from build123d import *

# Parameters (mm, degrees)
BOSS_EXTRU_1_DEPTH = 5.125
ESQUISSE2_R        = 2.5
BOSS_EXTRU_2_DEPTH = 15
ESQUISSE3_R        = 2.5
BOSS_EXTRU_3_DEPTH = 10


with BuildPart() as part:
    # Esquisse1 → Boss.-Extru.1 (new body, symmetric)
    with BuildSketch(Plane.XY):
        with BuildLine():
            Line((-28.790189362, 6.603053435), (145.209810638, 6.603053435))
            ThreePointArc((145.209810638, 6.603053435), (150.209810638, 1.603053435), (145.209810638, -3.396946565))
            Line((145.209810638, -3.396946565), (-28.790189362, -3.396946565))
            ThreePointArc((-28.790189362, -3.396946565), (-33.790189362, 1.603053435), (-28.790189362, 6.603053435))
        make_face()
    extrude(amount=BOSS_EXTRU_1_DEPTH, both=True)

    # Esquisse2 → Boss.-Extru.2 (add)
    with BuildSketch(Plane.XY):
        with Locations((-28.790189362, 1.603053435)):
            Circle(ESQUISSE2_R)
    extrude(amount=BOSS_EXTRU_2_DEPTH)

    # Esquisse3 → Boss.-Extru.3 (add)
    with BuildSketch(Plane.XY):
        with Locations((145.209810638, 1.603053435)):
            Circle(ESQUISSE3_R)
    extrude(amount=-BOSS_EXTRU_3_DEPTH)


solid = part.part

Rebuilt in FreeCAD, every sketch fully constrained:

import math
import FreeCAD as App
import Part
import Sketcher
from FreeCAD import Vector

doc = App.newDocument("Part")
body = doc.addObject("PartDesign::Body", "Body")

sketch1 = body.newObject("Sketcher::SketchObject", "Sketch")
sketch1.AttachmentSupport = (doc.getObject("XY_Plane"), [""])
sketch1.MapMode = "FlatFace"
sketch1.addGeometry([
    Part.LineSegment(Vector(145, 7, 0), Vector(-29, 7, 0)),
    Part.ArcOfCircle(Part.Circle(Vector(-29, 2, 0), Vector(0, 0, 1), 5), math.radians(90), math.radians(270)),
    Part.LineSegment(Vector(-29, -3, 0), Vector(145, -3, 0)),
    Part.ArcOfCircle(Part.Circle(Vector(145, 2, 0), Vector(0, 0, 1), 5), math.radians(-90), math.radians(90)),
], False)
sketch1.addConstraint([
    Sketcher.Constraint("Tangent", 0, 2, 1, 1),
    Sketcher.Constraint("Tangent", 1, 2, 2, 1),
    Sketcher.Constraint("Tangent", 2, 2, 3, 1),
    Sketcher.Constraint("Tangent", 3, 2, 0, 1),
    Sketcher.Constraint("Horizontal", 0),
    Sketcher.Constraint("Horizontal", 2),
    Sketcher.Constraint("Radius", 1, 5.0),
    Sketcher.Constraint("DistanceX", 0, 2, 0, 1, 174.0),
    Sketcher.Constraint("DistanceX", 1, 3, -1, 1, 28.790189),
    Sketcher.Constraint("DistanceY", -1, 1, 1, 3, 1.603053),
])
pad1 = body.newObject("PartDesign::Pad", "Pad")
pad1.Profile = sketch1
pad1.Length = 10.25
pad1.Midplane = True

sketch2 = body.newObject("Sketcher::SketchObject", "Sketch001")
sketch2.AttachmentSupport = (doc.getObject("XY_Plane"), [""])
sketch2.MapMode = "FlatFace"
sketch2.addGeometry(Part.Circle(Vector(-28.8, 1.6, 0), Vector(0, 0, 1), 2.5), False)
sketch2.addConstraint([
    Sketcher.Constraint("Diameter", 0, 5.0),
    Sketcher.Constraint("DistanceX", 0, 3, -1, 1, 28.790189),
    Sketcher.Constraint("DistanceY", -1, 1, 0, 3, 1.603053),
])
pad2 = body.newObject("PartDesign::Pad", "Pad001")
pad2.Profile = sketch2
pad2.Length = 15

sketch3 = body.newObject("Sketcher::SketchObject", "Sketch002")
sketch3.AttachmentSupport = (doc.getObject("XY_Plane"), [""])
sketch3.MapMode = "FlatFace"
sketch3.addGeometry(Part.Circle(Vector(145.2, 1.6, 0), Vector(0, 0, 1), 2.5), False)
sketch3.addConstraint([
    Sketcher.Constraint("Diameter", 0, 5.0),
    Sketcher.Constraint("DistanceX", -1, 1, 0, 3, 145.209811),
    Sketcher.Constraint("DistanceY", -1, 1, 0, 3, 1.603053),
])
pad3 = body.newObject("PartDesign::Pad", "Pad002")
pad3.Profile = sketch3
pad3.Length = 10
pad3.Reversed = True

doc.recompute()
